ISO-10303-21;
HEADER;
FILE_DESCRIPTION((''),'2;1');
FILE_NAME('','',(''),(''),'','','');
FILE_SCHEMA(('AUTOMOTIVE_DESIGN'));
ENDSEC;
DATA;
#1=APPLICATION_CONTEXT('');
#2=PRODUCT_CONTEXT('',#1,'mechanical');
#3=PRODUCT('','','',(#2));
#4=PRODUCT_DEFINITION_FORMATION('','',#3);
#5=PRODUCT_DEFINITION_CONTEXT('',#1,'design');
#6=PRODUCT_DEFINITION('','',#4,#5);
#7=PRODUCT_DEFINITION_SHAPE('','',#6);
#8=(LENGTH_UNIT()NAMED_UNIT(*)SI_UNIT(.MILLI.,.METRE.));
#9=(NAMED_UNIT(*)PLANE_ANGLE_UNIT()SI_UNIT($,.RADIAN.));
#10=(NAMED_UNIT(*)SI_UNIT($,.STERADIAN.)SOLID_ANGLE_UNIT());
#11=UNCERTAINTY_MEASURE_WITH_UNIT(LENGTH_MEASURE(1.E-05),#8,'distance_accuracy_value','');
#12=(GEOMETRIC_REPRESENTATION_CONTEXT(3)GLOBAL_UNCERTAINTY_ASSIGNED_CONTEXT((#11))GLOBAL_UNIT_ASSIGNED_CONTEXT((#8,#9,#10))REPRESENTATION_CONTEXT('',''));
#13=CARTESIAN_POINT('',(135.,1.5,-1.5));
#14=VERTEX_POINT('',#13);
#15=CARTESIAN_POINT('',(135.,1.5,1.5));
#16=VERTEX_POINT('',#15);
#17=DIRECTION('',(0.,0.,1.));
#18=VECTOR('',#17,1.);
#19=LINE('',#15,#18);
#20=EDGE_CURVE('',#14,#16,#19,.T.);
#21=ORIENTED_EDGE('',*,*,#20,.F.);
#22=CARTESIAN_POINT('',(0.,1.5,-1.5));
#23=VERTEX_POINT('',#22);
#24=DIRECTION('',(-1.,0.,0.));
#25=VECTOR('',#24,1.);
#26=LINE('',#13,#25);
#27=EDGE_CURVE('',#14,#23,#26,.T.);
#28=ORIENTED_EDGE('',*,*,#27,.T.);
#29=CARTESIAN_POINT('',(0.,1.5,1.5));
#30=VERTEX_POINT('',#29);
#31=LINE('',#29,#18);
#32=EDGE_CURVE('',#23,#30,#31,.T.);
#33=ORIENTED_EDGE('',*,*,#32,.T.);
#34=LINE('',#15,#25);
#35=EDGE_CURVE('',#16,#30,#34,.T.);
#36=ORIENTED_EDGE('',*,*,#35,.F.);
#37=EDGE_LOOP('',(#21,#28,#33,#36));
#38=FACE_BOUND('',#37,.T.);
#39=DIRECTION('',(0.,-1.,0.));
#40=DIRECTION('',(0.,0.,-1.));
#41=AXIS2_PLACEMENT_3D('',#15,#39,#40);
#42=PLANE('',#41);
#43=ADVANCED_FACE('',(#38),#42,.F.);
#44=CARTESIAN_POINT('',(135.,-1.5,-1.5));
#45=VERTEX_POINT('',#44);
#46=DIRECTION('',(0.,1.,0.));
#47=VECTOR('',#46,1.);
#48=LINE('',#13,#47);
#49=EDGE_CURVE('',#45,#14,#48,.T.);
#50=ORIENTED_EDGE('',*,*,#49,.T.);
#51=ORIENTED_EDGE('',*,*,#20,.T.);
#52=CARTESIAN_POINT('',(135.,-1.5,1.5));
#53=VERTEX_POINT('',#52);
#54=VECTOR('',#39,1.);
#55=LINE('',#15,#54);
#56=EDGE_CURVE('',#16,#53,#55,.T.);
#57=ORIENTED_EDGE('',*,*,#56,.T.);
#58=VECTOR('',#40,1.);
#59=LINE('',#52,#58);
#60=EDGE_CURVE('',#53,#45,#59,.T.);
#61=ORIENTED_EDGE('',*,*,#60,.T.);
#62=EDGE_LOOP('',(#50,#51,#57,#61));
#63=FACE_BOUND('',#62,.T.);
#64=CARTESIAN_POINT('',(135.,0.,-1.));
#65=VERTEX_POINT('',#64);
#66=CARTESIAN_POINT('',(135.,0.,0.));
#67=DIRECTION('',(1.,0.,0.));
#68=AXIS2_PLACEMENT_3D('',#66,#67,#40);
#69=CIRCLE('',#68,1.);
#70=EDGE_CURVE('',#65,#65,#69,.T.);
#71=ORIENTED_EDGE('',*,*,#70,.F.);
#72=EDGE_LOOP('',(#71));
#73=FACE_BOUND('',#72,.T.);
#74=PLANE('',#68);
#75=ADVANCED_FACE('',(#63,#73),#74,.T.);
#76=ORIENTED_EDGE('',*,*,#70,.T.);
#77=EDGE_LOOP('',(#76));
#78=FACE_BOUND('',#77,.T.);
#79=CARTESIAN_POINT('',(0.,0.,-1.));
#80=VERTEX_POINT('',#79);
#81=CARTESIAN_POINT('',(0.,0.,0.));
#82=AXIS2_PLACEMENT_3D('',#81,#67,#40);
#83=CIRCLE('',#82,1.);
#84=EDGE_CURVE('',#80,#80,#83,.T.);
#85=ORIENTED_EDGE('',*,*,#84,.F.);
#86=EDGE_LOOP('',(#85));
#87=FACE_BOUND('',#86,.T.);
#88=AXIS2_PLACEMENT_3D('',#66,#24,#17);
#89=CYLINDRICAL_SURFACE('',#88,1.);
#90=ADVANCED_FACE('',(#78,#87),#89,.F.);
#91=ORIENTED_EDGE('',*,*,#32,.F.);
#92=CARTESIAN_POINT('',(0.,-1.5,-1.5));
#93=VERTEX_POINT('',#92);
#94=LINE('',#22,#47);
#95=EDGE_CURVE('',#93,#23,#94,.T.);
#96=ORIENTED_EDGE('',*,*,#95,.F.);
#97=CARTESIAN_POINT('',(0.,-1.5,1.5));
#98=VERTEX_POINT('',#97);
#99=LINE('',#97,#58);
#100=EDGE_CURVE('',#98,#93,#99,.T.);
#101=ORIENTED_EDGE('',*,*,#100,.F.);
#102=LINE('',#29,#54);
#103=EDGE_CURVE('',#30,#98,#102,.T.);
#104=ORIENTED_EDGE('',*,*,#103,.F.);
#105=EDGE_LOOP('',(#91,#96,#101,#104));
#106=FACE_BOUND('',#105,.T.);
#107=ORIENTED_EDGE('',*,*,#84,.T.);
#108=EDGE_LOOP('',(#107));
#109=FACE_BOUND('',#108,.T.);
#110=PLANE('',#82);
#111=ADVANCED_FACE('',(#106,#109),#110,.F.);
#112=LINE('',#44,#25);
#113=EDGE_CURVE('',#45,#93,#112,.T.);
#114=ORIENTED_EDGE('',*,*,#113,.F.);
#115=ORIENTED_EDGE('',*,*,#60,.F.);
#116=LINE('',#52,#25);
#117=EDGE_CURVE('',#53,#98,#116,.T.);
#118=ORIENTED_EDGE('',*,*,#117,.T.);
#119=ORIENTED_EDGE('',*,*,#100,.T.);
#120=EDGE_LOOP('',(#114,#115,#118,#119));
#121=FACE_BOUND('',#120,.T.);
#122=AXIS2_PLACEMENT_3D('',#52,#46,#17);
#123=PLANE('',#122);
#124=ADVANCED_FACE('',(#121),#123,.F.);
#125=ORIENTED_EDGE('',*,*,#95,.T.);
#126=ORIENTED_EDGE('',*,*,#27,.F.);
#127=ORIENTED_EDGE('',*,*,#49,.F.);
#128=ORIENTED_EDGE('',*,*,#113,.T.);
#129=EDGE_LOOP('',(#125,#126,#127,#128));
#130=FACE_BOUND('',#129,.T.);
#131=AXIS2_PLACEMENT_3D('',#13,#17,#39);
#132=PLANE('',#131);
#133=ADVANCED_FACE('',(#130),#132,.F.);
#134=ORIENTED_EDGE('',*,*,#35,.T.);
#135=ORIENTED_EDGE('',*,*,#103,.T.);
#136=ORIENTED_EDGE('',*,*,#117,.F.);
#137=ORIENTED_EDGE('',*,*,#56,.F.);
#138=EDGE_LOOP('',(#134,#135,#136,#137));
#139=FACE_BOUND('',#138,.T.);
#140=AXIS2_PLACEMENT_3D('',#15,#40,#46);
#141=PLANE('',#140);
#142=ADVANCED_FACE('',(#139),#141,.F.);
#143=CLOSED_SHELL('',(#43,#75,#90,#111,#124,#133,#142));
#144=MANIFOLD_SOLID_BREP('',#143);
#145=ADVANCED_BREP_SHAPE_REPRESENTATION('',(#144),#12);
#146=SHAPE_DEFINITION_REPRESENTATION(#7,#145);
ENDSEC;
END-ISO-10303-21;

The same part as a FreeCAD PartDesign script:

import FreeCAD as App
import Part
import Sketcher
from FreeCAD import Vector
Q = App.Units.Quantity


def add_polygon(sketch, points):
    """Adds a closed chain of lines whose ends are joined by coincident constraints."""
    first, n = sketch.GeometryCount, len(points)
    for a, b in zip(points, points[1:] + points[:1]):
        sketch.addGeometry(Part.LineSegment(App.Vector(*a, 0), App.Vector(*b, 0)), False)
    for i in range(n):
        sketch.addConstraint(Sketcher.Constraint("Coincident", first + i, 2, first + (i + 1) % n, 1))

doc = App.newDocument("Part")
body = doc.addObject("PartDesign::Body", "Body")

# Sketch on YZ plane
sketch1 = doc.addObject("Sketcher::SketchObject", "Sketch")
body.addObject(sketch1)
sketch1.AttachmentSupport = (doc.YZ_Plane, [""])
sketch1.MapMode = "FlatFace"
add_polygon(sketch1, [(1.5, 1.5), (-1.5, 1.5), (-1.5, -1.5), (1.5, -1.5)])  # lines 0-3
sketch1.addGeometry(Part.Circle(Vector(0, 0, 0), Vector(0, 0, 1), 1), False)  # 4
sketch1.addConstraint([
    Sketcher.Constraint("Horizontal", 0),
    Sketcher.Constraint("Vertical", 1),
    Sketcher.Constraint("Horizontal", 2),
    Sketcher.Constraint("Vertical", 3),
    Sketcher.Constraint("Coincident", 4, 3, -1, 1),
    Sketcher.Constraint("Symmetric", 0, 2, 2, 2, -1, 1),
    Sketcher.Constraint("Equal", 2, 1),
    Sketcher.Constraint("Diameter", 4, Q("2 mm")),
    Sketcher.Constraint("DistanceX", 0, 2, 0, 1, Q("3 mm")),
])
pad1 = doc.addObject("PartDesign::Pad", "Pad")
body.addObject(pad1)
pad1.Profile = sketch1
pad1.Length = 135

doc.recompute()
